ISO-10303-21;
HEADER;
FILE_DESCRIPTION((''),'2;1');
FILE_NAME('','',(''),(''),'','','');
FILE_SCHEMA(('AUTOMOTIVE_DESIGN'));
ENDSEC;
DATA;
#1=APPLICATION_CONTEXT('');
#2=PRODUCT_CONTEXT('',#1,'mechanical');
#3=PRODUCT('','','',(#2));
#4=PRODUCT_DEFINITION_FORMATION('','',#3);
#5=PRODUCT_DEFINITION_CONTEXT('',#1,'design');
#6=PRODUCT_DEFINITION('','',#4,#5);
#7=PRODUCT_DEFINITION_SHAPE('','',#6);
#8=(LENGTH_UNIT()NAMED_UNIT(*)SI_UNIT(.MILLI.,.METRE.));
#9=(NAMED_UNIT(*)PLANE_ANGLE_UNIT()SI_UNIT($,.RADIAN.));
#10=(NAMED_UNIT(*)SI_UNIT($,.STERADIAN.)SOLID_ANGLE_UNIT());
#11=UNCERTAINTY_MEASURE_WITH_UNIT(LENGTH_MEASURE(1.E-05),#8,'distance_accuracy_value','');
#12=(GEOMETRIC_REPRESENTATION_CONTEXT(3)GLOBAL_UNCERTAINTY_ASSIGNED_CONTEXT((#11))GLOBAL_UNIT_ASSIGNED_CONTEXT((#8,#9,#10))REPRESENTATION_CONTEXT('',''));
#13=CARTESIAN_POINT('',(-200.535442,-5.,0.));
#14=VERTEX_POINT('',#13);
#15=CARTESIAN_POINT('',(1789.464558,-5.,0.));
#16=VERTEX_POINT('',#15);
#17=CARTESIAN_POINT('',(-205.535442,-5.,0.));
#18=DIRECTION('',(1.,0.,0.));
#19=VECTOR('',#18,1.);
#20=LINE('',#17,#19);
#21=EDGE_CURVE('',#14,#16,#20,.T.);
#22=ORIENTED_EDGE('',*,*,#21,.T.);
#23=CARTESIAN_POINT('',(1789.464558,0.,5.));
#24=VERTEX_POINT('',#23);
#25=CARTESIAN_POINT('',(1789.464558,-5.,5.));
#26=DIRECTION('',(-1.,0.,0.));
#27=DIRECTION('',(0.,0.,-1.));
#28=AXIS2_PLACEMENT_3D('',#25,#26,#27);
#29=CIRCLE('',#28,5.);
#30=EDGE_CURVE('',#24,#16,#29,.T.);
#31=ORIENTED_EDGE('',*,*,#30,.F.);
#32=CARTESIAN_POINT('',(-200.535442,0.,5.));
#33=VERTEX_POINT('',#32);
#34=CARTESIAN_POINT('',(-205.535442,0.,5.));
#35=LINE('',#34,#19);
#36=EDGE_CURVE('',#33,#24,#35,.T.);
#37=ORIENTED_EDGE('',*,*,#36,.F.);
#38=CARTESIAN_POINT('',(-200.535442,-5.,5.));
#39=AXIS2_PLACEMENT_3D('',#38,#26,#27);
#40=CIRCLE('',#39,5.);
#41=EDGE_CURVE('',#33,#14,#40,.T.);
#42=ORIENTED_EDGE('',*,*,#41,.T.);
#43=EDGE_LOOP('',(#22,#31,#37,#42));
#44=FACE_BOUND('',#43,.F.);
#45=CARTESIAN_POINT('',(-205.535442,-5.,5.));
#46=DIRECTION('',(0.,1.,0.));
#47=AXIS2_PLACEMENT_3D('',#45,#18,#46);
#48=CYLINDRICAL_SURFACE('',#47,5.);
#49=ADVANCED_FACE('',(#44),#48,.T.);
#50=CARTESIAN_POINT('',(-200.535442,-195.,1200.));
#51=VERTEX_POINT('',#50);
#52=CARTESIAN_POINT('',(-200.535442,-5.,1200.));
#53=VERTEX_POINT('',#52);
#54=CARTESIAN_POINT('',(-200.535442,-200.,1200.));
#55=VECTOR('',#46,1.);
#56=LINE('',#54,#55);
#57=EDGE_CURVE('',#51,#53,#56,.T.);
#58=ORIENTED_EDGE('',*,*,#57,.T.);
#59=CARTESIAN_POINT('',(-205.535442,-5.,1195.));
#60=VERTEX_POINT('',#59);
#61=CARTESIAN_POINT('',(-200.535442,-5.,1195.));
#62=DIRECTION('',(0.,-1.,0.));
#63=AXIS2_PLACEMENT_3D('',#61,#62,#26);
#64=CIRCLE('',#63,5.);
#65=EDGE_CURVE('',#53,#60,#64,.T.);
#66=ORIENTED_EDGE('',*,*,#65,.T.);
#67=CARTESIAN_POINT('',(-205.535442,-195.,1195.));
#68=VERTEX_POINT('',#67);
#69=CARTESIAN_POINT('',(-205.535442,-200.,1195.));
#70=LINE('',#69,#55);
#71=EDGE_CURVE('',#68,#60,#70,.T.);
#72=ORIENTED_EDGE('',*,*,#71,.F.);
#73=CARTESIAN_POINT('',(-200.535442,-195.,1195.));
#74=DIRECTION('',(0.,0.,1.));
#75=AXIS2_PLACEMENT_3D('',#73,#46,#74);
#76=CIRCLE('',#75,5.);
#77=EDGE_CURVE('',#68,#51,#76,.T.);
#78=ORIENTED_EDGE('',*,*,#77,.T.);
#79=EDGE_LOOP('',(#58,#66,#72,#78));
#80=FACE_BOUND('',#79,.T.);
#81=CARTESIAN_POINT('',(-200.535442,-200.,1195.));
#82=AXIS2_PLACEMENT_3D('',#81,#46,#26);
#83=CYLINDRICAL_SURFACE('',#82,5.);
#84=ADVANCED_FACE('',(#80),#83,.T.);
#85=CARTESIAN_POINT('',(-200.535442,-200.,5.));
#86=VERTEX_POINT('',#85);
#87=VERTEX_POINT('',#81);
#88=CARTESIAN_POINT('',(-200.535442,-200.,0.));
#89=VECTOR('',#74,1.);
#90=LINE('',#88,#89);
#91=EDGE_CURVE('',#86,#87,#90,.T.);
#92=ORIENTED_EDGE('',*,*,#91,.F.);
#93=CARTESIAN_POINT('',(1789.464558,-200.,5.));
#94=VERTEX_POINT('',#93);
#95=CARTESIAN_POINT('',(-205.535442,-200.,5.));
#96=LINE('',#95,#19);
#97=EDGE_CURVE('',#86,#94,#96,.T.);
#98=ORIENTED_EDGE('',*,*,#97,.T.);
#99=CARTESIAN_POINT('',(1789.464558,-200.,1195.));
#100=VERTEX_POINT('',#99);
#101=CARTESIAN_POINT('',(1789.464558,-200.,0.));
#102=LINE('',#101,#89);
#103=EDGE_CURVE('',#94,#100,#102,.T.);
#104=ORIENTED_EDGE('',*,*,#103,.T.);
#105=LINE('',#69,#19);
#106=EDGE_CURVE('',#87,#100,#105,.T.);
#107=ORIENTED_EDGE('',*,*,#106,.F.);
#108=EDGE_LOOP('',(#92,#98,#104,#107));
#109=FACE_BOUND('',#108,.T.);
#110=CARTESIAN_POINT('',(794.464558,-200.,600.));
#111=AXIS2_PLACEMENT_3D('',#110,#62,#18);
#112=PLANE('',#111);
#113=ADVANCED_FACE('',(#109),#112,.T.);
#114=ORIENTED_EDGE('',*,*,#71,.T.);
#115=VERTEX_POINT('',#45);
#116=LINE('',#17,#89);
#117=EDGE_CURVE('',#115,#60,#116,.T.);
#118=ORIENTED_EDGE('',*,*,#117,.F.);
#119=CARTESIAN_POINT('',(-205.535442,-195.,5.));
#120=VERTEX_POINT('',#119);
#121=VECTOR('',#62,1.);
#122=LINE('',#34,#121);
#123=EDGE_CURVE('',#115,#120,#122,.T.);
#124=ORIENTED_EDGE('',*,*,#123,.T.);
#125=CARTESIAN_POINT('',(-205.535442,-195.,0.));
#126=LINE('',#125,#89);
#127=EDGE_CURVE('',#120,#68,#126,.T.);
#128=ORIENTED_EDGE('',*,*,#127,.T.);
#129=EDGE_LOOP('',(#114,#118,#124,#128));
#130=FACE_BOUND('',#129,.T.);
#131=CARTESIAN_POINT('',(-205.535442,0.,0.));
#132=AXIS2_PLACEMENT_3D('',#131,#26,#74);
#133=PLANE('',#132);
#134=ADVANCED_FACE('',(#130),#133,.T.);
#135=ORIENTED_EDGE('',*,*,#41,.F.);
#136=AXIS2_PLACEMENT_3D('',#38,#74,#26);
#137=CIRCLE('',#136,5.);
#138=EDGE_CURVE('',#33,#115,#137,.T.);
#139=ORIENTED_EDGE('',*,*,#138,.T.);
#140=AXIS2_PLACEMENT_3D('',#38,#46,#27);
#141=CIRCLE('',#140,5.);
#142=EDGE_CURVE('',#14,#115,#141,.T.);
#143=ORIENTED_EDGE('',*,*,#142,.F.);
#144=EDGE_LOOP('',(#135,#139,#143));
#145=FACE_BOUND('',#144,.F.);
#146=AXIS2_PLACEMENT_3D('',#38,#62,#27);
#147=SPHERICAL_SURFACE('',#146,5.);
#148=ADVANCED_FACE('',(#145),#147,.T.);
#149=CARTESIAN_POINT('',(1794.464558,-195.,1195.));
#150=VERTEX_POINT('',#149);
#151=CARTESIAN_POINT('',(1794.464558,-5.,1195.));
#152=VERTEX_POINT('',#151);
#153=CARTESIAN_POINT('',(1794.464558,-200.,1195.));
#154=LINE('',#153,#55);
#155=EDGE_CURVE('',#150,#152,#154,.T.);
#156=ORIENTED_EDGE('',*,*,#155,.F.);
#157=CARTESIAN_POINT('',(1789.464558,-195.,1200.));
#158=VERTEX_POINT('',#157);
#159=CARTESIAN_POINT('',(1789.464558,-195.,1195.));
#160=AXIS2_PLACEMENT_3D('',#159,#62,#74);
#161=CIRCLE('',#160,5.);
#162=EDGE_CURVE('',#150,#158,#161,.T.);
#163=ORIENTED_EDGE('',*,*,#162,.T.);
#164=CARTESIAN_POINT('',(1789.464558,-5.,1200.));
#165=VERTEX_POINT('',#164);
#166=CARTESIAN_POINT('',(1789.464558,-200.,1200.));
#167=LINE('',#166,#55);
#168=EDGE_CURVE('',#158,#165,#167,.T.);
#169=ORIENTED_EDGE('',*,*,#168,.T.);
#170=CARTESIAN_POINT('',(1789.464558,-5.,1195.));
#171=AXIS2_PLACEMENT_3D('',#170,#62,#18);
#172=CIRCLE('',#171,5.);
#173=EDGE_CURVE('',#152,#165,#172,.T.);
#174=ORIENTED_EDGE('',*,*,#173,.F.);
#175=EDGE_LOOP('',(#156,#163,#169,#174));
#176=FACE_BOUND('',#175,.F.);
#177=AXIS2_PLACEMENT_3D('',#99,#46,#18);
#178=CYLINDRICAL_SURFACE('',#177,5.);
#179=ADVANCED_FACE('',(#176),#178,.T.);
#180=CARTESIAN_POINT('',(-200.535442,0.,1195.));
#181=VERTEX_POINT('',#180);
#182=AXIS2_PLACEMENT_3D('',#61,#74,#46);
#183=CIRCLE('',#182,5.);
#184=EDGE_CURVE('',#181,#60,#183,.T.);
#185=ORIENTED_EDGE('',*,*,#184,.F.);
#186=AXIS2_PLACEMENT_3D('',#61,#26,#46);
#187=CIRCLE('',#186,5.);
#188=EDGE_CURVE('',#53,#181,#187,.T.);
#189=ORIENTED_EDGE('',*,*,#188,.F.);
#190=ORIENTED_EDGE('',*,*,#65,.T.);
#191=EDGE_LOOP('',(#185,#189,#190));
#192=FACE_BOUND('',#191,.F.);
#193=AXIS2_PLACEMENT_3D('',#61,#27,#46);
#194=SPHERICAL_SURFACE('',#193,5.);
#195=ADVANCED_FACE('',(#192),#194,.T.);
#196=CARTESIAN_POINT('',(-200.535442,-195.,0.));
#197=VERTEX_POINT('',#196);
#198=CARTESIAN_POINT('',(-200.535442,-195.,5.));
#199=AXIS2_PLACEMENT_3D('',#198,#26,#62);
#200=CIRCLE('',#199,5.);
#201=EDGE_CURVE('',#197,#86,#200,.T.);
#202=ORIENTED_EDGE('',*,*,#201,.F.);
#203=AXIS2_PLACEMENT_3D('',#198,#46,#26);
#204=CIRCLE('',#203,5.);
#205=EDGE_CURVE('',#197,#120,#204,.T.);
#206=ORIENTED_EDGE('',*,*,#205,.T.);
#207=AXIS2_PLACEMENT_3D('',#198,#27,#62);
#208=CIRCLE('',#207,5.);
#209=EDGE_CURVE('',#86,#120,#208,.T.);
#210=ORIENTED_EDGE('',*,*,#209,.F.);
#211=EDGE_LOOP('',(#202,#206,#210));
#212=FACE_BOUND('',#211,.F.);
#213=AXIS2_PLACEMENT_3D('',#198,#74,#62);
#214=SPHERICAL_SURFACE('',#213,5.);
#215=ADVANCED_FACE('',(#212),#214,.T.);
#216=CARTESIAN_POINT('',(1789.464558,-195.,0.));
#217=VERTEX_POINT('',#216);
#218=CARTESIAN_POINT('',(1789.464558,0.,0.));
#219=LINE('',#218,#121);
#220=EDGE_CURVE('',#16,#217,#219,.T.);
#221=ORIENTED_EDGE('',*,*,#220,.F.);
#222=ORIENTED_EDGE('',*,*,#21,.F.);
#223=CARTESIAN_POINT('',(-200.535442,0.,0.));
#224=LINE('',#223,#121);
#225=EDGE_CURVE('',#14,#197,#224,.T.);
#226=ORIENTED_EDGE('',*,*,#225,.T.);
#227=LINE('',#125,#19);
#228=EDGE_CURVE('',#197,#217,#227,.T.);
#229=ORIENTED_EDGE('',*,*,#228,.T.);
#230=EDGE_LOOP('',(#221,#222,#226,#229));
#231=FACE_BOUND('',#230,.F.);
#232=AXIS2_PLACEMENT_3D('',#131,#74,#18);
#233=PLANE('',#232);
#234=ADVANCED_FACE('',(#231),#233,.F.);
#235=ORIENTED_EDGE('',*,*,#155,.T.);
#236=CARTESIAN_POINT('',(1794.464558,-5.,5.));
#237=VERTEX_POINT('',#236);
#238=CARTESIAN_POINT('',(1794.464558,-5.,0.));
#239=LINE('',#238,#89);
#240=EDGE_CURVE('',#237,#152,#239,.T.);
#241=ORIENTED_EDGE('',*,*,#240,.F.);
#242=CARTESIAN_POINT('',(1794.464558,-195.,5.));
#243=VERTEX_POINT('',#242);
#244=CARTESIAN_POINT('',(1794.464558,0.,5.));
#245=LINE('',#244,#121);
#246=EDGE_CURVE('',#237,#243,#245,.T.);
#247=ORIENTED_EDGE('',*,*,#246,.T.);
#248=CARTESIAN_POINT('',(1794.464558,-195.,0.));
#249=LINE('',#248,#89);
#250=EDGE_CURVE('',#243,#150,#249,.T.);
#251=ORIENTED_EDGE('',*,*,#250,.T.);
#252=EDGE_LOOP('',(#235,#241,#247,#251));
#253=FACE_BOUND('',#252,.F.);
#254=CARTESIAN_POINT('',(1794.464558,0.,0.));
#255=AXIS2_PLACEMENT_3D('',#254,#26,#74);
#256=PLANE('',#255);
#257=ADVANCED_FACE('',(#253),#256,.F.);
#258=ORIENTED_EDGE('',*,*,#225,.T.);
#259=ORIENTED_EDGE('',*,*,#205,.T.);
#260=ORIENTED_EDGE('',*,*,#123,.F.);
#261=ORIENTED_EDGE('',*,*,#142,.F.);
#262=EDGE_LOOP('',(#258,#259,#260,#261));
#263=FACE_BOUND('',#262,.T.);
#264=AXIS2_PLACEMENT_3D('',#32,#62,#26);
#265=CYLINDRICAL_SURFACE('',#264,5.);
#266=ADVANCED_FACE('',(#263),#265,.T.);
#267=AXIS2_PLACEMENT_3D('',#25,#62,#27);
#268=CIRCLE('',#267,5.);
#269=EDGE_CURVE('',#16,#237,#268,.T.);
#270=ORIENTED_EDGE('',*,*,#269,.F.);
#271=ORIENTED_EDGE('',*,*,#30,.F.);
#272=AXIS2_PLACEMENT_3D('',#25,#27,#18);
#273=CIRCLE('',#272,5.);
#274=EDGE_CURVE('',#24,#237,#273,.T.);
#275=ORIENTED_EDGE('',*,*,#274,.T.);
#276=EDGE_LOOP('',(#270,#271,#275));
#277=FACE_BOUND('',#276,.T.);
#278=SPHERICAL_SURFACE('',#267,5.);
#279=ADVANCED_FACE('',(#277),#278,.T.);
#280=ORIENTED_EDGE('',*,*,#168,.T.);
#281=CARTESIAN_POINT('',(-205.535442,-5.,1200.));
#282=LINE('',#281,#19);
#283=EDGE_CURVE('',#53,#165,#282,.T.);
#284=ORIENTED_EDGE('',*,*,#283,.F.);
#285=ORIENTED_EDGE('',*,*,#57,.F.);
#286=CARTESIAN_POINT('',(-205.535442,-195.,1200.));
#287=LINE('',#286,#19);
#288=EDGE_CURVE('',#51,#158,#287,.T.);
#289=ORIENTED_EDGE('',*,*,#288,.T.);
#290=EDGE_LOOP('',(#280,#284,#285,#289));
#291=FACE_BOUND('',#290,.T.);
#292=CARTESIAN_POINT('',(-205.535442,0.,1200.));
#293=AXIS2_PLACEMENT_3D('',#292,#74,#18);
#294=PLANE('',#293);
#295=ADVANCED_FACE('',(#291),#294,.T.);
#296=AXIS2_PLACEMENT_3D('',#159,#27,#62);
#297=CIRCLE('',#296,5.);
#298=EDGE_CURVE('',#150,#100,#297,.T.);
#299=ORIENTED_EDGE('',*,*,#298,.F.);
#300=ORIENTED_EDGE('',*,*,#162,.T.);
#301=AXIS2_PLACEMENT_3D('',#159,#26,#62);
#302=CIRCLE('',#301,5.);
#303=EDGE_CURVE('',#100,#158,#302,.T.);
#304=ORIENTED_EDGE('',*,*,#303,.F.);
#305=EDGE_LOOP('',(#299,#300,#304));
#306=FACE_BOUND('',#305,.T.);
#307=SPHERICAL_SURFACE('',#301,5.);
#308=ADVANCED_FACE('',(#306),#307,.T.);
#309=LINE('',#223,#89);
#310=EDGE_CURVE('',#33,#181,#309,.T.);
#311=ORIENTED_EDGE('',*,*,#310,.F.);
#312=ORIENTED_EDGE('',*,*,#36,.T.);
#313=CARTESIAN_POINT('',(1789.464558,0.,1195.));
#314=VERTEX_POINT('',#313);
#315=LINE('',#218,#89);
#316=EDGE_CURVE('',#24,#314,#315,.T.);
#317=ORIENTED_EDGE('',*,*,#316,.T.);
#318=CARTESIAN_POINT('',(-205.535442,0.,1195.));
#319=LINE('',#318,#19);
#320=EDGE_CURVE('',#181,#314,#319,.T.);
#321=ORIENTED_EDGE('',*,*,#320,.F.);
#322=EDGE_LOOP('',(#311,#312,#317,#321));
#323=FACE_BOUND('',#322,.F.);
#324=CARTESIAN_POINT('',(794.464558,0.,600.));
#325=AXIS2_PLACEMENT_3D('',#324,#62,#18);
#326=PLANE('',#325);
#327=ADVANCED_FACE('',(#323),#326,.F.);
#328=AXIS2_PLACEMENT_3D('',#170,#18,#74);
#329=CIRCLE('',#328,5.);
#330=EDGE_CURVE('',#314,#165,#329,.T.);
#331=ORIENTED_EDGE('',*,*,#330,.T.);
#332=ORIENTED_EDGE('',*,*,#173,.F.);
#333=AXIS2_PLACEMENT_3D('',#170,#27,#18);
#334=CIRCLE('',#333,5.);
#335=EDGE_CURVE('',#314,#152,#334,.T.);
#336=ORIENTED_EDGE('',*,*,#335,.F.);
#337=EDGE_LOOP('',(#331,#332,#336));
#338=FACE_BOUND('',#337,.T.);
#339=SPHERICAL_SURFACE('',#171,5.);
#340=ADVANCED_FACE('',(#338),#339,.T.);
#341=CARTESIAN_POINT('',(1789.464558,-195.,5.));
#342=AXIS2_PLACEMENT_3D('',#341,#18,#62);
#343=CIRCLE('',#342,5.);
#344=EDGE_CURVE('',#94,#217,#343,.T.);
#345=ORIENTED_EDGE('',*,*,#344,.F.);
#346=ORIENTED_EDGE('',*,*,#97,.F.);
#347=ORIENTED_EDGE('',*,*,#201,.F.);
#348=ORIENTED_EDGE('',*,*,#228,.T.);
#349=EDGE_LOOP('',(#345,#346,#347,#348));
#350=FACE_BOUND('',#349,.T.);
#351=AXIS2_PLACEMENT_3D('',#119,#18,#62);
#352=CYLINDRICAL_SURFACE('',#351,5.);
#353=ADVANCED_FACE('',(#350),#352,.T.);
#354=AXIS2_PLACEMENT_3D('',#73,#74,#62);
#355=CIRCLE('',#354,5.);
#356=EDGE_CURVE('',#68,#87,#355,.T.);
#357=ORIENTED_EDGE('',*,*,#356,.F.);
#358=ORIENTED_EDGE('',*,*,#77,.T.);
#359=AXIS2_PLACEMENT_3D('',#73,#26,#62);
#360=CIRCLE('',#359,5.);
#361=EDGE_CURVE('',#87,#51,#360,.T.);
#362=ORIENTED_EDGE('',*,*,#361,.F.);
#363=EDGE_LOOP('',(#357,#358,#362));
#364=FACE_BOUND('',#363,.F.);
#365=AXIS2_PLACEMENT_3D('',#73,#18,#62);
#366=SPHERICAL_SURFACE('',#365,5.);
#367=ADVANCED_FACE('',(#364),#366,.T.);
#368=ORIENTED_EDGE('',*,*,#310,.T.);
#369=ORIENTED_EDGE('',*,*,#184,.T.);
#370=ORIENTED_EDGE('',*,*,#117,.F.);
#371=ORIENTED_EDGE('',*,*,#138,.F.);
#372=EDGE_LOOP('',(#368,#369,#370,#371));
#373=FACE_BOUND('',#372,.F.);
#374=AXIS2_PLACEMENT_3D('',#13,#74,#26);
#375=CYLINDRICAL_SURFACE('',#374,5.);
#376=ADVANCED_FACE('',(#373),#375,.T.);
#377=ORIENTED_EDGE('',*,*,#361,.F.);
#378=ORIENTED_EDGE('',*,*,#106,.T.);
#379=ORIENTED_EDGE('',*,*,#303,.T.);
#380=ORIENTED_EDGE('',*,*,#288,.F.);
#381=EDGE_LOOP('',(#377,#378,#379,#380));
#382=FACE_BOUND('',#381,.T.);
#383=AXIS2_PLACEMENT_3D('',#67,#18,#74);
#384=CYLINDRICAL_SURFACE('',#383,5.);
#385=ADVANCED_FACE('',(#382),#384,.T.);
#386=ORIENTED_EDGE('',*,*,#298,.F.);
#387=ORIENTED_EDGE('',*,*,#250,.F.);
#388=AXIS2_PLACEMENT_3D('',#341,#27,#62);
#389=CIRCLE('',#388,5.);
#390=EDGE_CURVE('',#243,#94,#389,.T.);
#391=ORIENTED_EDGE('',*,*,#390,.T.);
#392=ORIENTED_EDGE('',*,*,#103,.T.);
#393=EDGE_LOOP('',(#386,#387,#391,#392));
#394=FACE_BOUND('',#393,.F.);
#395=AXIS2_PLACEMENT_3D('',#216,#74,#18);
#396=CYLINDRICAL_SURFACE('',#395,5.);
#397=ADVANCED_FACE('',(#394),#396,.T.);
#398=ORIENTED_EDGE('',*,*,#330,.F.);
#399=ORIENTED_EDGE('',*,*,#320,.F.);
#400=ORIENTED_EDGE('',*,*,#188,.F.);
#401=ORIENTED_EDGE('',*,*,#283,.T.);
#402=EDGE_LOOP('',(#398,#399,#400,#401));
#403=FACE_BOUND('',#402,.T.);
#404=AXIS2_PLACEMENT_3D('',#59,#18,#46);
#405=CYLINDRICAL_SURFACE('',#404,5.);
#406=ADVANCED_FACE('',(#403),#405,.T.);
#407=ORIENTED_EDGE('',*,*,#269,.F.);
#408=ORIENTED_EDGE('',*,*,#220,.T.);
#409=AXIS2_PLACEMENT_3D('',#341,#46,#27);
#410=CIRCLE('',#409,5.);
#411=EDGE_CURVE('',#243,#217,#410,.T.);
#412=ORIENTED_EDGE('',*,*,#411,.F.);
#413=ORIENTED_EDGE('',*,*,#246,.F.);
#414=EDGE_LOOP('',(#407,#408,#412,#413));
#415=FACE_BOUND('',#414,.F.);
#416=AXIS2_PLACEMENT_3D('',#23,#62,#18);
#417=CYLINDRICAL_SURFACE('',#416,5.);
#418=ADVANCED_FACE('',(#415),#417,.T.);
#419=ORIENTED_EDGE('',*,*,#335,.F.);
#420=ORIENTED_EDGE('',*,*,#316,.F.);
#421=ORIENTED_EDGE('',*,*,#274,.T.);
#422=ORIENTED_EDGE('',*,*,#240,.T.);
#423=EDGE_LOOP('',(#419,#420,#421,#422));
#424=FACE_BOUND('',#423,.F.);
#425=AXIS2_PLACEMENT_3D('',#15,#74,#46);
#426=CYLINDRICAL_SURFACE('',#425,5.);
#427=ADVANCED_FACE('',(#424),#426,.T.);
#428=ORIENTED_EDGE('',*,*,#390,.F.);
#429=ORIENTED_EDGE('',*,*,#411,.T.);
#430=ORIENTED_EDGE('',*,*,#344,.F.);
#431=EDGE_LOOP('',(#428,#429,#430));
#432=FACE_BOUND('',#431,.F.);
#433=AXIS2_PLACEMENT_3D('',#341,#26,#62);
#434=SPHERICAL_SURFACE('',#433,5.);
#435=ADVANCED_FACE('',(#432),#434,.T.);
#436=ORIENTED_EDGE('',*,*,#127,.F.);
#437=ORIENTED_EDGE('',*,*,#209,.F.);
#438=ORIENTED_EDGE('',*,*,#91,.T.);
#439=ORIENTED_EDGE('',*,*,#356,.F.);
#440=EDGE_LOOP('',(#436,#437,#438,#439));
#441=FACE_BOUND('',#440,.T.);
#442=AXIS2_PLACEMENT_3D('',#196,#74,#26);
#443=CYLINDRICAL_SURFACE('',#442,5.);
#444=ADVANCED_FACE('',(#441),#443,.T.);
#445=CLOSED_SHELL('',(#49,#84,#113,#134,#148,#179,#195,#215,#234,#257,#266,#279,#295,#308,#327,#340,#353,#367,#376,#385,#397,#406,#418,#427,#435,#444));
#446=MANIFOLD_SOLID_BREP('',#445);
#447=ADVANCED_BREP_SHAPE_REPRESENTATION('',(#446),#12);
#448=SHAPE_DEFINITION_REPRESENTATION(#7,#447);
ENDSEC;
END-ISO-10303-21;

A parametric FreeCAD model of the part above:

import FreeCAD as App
import Part
import Sketcher

V = App.Vector
Q = App.Units.Quantity

doc = App.newDocument("Part")
body = doc.addObject("PartDesign::Body", "Body")

# Sketch on XZ plane
sketch1 = doc.addObject("Sketcher::SketchObject", "Sketch")
body.addObject(sketch1)
sketch1.AttachmentSupport = (doc.XZ_Plane, [""])
sketch1.MapMode = "FlatFace"
sketch1.addGeometry([
    Part.LineSegment(V(-206, 1200, 0), V(-206, 0, 0)),
    Part.LineSegment(V(-206, 0, 0), V(1794, 0, 0)),
    Part.LineSegment(V(1794, 0, 0), V(1794, 1200, 0)),
    Part.LineSegment(V(1794, 1200, 0), V(-206, 1200, 0)),
], False)
sketch1.addConstraint([
    Sketcher.Constraint("Coincident", 0, 2, 1, 1),
    Sketcher.Constraint("Coincident", 1, 2, 2, 1),
    Sketcher.Constraint("Coincident", 2, 2, 3, 1),
    Sketcher.Constraint("Coincident", 3, 2, 0, 1),
    Sketcher.Constraint("Vertical", 0),
    Sketcher.Constraint("Horizontal", 1),
    Sketcher.Constraint("Vertical", 2),
    Sketcher.Constraint("Horizontal", 3),
    Sketcher.Constraint("PointOnObject", 0, 2, -1),
    Sketcher.Constraint("DistanceX", 1, 1, 1, 2, Q("2000 mm")),
    Sketcher.Constraint("DistanceY", 0, 2, 0, 1, Q("1200 mm")),
    Sketcher.Constraint("DistanceX", 0, 2, -1, 1, Q("205.535442 mm")),
])
pad1 = doc.addObject("PartDesign::Pad", "Pad")
body.addObject(pad1)
pad1.Profile = sketch1
pad1.Length = 25

# Sketch on XZ plane
sketch2 = doc.addObject("Sketcher::SketchObject", "Sketch001")
body.addObject(sketch2)
sketch2.AttachmentSupport = (doc.XZ_Plane, [""])
sketch2.MapMode = "FlatFace"
sketch2.addGeometry([
    Part.LineSegment(V(-206, 1200, 0), V(-206, 0, 0)),
    Part.LineSegment(V(-206, 0, 0), V(1794, 0, 0)),
    Part.LineSegment(V(1794, 0, 0), V(1794, 1200, 0)),
    Part.LineSegment(V(1794, 1200, 0), V(-206, 1200, 0)),
], False)
sketch2.addConstraint([
    Sketcher.Constraint("Coincident", 0, 2, 1, 1),
    Sketcher.Constraint("Coincident", 1, 2, 2, 1),
    Sketcher.Constraint("Coincident", 2, 2, 3, 1),
    Sketcher.Constraint("Coincident", 3, 2, 0, 1),
    Sketcher.Constraint("Vertical", 0),
    Sketcher.Constraint("Horizontal", 1),
    Sketcher.Constraint("Vertical", 2),
    Sketcher.Constraint("Horizontal", 3),
    Sketcher.Constraint("PointOnObject", 0, 2, -1),
    Sketcher.Constraint("DistanceX", 1, 1, 1, 2, Q("2000 mm")),
    Sketcher.Constraint("DistanceY", 0, 2, 0, 1, Q("1200 mm")),
    Sketcher.Constraint("DistanceX", 0, 2, -1, 1, Q("205.535442 mm")),
])
pad2 = doc.addObject("PartDesign::Pad", "Pad001")
body.addObject(pad2)
pad2.Profile = sketch2
pad2.Length = 200
doc.recompute()

fillet = doc.addObject("PartDesign::Fillet", "Fillet")
body.addObject(fillet)
fillet.Base = (pad2, ["Edge1"])
fillet.UseAllEdges = True
fillet.Radius = 5

doc.recompute()
